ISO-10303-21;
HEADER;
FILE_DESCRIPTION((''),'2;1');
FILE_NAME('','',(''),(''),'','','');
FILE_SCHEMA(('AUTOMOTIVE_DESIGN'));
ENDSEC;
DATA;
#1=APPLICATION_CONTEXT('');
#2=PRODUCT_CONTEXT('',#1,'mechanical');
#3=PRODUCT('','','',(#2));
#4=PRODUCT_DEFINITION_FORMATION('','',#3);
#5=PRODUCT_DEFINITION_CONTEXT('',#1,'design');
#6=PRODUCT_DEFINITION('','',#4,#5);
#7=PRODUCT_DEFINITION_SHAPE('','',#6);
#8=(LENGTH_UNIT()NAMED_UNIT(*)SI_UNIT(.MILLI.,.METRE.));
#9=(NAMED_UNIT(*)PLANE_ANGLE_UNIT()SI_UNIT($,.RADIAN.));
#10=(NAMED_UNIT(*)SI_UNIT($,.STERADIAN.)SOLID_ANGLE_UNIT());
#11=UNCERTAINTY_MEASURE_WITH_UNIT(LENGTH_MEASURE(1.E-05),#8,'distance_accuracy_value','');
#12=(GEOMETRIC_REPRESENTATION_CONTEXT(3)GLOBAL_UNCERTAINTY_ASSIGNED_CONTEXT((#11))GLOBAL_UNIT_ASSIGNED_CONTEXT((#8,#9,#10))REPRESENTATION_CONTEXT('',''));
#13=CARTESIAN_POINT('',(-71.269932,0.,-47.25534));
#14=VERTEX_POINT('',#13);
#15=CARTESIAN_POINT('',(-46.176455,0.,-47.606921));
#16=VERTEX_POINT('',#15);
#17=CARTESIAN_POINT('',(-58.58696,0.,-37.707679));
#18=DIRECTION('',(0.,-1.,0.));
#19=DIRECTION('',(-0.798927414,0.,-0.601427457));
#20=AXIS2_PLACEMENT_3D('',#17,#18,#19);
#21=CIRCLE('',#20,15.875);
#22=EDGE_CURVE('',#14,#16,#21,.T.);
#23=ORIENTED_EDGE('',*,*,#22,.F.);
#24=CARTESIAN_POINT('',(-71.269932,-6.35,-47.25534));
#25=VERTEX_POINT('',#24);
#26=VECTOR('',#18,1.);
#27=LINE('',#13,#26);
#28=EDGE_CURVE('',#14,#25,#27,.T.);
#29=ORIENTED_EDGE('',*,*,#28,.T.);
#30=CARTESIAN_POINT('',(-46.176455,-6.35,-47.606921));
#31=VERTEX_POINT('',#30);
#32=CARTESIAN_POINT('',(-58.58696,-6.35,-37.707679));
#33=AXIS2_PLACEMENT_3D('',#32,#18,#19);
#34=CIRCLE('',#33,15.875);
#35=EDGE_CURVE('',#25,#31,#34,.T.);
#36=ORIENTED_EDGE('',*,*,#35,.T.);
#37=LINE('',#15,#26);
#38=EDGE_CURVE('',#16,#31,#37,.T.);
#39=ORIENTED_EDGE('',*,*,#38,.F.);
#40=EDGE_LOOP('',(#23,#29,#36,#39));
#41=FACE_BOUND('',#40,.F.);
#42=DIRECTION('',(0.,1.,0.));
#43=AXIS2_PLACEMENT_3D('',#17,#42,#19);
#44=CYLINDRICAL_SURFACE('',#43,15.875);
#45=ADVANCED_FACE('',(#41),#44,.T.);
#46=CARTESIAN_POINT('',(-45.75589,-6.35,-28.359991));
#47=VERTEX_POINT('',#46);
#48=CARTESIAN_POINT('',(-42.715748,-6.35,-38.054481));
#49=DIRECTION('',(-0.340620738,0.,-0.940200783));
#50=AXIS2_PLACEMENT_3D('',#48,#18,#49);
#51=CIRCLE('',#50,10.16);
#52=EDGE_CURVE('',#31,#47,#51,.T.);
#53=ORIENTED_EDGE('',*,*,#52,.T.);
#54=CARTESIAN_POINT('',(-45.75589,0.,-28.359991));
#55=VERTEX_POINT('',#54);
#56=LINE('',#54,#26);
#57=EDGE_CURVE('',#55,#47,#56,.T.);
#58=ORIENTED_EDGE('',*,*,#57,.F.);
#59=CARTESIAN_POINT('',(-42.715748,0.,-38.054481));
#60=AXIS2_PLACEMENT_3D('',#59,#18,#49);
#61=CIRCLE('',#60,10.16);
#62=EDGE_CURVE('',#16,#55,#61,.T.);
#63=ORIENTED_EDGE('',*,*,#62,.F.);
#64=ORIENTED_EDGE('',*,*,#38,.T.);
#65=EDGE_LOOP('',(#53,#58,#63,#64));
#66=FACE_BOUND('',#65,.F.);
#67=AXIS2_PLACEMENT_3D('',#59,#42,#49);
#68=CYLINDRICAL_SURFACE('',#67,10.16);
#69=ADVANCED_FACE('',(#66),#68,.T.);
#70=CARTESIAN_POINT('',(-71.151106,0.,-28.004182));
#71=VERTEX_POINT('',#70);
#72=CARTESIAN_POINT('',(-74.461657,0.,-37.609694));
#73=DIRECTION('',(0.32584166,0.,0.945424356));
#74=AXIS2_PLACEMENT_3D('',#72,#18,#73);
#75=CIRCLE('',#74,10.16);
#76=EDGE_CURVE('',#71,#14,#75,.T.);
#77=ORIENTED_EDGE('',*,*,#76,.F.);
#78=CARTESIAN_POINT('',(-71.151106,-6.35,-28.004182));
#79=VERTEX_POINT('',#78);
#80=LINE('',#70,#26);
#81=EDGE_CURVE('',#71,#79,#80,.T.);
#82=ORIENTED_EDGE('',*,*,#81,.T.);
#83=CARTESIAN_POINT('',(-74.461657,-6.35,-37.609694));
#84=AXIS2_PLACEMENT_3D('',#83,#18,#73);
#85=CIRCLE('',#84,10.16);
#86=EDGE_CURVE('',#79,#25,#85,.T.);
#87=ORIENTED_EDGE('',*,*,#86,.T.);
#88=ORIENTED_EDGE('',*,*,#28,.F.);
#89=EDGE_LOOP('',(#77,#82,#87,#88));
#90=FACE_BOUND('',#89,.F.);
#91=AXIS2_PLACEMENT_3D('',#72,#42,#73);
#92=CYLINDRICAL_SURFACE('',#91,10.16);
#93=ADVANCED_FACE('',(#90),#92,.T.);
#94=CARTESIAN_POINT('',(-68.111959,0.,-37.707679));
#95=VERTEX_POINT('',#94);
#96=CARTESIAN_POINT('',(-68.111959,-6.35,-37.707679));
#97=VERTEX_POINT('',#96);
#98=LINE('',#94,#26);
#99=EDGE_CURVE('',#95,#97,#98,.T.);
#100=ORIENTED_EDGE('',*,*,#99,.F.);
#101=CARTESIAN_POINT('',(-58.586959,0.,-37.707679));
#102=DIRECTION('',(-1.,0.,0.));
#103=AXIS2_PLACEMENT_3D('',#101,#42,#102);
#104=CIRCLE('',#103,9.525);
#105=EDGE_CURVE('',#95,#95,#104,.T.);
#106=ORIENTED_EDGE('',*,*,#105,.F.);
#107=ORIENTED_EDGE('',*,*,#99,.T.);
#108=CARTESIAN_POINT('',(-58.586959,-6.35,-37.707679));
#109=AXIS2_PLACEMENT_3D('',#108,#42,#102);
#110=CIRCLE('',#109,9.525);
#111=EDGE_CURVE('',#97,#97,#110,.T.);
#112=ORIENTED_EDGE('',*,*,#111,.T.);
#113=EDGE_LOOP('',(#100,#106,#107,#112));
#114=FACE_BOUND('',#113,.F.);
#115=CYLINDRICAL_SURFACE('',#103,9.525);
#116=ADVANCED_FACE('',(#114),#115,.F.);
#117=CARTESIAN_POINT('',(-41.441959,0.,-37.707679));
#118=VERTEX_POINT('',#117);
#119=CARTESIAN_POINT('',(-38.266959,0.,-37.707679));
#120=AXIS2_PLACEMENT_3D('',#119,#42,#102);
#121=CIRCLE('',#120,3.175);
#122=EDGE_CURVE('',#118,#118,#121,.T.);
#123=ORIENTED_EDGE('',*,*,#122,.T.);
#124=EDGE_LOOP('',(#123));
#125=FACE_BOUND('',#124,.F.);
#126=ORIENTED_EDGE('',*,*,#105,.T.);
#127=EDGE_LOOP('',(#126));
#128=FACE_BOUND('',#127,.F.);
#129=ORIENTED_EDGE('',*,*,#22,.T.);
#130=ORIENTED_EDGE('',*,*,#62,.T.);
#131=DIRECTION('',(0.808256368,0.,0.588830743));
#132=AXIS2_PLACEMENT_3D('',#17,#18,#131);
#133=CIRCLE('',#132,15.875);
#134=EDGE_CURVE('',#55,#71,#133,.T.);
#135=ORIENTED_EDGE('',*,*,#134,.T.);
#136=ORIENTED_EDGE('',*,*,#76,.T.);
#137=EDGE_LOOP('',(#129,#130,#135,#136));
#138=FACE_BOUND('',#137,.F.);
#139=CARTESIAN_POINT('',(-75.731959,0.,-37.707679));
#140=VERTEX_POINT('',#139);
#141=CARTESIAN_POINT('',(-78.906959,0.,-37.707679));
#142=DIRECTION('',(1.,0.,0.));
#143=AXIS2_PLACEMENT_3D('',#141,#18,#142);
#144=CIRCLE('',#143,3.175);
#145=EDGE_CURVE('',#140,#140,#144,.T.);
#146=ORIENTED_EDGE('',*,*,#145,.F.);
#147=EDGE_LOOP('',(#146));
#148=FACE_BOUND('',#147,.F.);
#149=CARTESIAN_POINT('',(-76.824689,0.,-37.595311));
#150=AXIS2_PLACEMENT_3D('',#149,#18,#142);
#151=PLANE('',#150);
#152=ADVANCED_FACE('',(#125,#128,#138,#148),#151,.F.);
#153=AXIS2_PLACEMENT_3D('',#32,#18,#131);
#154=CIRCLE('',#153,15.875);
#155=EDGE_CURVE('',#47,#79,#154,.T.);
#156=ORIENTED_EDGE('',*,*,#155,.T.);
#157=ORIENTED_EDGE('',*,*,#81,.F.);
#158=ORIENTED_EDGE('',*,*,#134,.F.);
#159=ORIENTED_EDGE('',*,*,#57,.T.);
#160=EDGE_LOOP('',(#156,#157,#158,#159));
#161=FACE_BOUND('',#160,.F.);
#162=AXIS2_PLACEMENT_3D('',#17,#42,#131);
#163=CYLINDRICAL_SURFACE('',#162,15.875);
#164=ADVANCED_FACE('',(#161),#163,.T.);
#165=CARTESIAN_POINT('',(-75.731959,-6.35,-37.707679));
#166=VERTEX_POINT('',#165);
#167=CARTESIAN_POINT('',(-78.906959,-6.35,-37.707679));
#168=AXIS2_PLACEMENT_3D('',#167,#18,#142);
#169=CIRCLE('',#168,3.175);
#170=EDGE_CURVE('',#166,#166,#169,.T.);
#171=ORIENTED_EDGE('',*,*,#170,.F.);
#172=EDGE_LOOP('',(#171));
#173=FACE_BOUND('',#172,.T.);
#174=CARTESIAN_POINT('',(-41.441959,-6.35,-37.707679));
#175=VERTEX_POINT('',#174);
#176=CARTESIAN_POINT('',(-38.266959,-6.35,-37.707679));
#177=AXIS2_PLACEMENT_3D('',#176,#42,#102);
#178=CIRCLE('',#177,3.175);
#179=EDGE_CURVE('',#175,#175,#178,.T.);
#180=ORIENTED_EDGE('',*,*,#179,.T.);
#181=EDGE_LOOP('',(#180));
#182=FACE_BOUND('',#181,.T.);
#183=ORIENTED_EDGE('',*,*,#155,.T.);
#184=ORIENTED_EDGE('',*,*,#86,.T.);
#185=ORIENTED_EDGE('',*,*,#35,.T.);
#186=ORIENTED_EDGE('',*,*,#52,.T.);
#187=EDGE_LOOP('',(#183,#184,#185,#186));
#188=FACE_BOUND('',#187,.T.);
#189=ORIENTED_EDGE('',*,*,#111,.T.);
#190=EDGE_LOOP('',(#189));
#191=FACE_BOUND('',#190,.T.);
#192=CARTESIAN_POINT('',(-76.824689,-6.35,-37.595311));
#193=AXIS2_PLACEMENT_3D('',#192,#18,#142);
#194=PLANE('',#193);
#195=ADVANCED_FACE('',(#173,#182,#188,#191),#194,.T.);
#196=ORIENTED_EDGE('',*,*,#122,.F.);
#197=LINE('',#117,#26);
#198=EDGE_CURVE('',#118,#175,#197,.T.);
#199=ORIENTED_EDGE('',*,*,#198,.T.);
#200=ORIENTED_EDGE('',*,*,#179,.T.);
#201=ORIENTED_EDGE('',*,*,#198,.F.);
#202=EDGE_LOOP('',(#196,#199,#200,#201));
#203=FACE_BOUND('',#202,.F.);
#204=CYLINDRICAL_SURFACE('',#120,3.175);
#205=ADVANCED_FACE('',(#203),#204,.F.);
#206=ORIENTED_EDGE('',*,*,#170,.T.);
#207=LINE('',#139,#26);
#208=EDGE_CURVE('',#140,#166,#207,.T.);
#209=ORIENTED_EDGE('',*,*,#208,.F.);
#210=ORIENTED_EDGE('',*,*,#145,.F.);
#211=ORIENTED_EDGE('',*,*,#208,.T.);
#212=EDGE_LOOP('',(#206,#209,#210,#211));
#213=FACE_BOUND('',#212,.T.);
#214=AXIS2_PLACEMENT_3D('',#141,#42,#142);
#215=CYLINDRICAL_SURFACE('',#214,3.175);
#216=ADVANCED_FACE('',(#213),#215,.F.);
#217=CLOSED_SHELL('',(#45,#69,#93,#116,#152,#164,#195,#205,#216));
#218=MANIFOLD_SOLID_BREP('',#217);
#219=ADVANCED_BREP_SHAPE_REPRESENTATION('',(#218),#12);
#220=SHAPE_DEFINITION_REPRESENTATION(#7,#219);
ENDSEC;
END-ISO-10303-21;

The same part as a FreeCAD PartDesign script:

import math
import FreeCAD as App
import Part
import Sketcher
from FreeCAD import Vector
Q = App.Units.Quantity

doc = App.newDocument("Part")
body = doc.addObject("PartDesign::Body", "Body")

# Sketch on XZ plane
sketch1 = body.newObject("Sketcher::SketchObject", "Sketch")
sketch1.AttachmentSupport = (doc.getObject("XZ_Plane"), [""])
sketch1.MapMode = "FlatFace"
sketch1.addGeometry([
    Part.ArcOfCircle(Part.Circle(Vector(-74.5, -37.6, 0), Vector(0, 0, 1), 10.2), math.radians(71), math.radians(288)),  # 0
    Part.ArcOfCircle(Part.Circle(Vector(-58.6, -37.7, 0), Vector(0, 0, 1), 15.9), math.radians(-143), math.radians(-39)),  # 1
    Part.ArcOfCircle(Part.Circle(Vector(-42.7, -38.1, 0), Vector(0, 0, 1), 10.2), math.radians(-110), math.radians(107)),  # 2
    Part.ArcOfCircle(Part.Circle(Vector(-58.6, -37.7, 0), Vector(0, 0, 1), 15.9), math.radians(36), math.radians(142)),  # 3
    Part.Circle(Vector(-78.9, -37.7, 0), Vector(0, 0, 1), 3.2),  # 4
    Part.Circle(Vector(-38.3, -37.7, 0), Vector(0, 0, 1), 3.2),  # 5
    Part.Circle(Vector(-58.6, -37.7, 0), Vector(0, 0, 1), 9.5),  # 6
], False)
sketch1.addConstraint([
    Sketcher.Constraint("Coincident", 0, 2, 1, 1),
    Sketcher.Constraint("Coincident", 1, 2, 2, 1),
    Sketcher.Constraint("Coincident", 2, 2, 3, 1),
    Sketcher.Constraint("Coincident", 3, 2, 0, 1),
    Sketcher.Constraint("Coincident", 3, 3, 1, 3),
    Sketcher.Constraint("Coincident", 6, 3, 1, 3),
    Sketcher.Constraint("Equal", 0, 2),
    Sketcher.Constraint("Equal", 1, 3),
    Sketcher.Constraint("Equal", 4, 5),
    Sketcher.Constraint("Horizontal", 3, 3, 4, 3),
    Sketcher.Constraint("Horizontal", 4, 3, 5, 3),
    Sketcher.Constraint("Radius", 0, Q("0.4 in")),
    Sketcher.Constraint("Diameter", 4, Q("0.25 in")),
    Sketcher.Constraint("Diameter", 6, Q("0.75 in")),
    Sketcher.Constraint("Radius", 1, Q("0.625 in")),
    Sketcher.Constraint("DistanceX", 4, 3, 3, 3, Q("0.8 in")),
    Sketcher.Constraint("DistanceX", 1, 3, 5, 3, Q("0.8 in")),
    Sketcher.Constraint("DistanceY", 2, 3, 1, 3, 0.346802),
    Sketcher.Constraint("DistanceX", 4, 3, 0, 3, 4.445302),
    Sketcher.Constraint("DistanceX", 1, 3, -1, 1, 58.58696),
    Sketcher.Constraint("DistanceY", 1, 3, -1, 1, 37.707679),
    Sketcher.Constraint("DistanceX", 2, 3, -1, 1, 42.715748),
    Sketcher.Constraint("DistanceY", 0, 2, -1, 1, 47.25534),
])
pad1 = body.newObject("PartDesign::Pad", "Pad")
pad1.Profile = sketch1
pad1.Length = Q("0.25 in")

doc.recompute()
